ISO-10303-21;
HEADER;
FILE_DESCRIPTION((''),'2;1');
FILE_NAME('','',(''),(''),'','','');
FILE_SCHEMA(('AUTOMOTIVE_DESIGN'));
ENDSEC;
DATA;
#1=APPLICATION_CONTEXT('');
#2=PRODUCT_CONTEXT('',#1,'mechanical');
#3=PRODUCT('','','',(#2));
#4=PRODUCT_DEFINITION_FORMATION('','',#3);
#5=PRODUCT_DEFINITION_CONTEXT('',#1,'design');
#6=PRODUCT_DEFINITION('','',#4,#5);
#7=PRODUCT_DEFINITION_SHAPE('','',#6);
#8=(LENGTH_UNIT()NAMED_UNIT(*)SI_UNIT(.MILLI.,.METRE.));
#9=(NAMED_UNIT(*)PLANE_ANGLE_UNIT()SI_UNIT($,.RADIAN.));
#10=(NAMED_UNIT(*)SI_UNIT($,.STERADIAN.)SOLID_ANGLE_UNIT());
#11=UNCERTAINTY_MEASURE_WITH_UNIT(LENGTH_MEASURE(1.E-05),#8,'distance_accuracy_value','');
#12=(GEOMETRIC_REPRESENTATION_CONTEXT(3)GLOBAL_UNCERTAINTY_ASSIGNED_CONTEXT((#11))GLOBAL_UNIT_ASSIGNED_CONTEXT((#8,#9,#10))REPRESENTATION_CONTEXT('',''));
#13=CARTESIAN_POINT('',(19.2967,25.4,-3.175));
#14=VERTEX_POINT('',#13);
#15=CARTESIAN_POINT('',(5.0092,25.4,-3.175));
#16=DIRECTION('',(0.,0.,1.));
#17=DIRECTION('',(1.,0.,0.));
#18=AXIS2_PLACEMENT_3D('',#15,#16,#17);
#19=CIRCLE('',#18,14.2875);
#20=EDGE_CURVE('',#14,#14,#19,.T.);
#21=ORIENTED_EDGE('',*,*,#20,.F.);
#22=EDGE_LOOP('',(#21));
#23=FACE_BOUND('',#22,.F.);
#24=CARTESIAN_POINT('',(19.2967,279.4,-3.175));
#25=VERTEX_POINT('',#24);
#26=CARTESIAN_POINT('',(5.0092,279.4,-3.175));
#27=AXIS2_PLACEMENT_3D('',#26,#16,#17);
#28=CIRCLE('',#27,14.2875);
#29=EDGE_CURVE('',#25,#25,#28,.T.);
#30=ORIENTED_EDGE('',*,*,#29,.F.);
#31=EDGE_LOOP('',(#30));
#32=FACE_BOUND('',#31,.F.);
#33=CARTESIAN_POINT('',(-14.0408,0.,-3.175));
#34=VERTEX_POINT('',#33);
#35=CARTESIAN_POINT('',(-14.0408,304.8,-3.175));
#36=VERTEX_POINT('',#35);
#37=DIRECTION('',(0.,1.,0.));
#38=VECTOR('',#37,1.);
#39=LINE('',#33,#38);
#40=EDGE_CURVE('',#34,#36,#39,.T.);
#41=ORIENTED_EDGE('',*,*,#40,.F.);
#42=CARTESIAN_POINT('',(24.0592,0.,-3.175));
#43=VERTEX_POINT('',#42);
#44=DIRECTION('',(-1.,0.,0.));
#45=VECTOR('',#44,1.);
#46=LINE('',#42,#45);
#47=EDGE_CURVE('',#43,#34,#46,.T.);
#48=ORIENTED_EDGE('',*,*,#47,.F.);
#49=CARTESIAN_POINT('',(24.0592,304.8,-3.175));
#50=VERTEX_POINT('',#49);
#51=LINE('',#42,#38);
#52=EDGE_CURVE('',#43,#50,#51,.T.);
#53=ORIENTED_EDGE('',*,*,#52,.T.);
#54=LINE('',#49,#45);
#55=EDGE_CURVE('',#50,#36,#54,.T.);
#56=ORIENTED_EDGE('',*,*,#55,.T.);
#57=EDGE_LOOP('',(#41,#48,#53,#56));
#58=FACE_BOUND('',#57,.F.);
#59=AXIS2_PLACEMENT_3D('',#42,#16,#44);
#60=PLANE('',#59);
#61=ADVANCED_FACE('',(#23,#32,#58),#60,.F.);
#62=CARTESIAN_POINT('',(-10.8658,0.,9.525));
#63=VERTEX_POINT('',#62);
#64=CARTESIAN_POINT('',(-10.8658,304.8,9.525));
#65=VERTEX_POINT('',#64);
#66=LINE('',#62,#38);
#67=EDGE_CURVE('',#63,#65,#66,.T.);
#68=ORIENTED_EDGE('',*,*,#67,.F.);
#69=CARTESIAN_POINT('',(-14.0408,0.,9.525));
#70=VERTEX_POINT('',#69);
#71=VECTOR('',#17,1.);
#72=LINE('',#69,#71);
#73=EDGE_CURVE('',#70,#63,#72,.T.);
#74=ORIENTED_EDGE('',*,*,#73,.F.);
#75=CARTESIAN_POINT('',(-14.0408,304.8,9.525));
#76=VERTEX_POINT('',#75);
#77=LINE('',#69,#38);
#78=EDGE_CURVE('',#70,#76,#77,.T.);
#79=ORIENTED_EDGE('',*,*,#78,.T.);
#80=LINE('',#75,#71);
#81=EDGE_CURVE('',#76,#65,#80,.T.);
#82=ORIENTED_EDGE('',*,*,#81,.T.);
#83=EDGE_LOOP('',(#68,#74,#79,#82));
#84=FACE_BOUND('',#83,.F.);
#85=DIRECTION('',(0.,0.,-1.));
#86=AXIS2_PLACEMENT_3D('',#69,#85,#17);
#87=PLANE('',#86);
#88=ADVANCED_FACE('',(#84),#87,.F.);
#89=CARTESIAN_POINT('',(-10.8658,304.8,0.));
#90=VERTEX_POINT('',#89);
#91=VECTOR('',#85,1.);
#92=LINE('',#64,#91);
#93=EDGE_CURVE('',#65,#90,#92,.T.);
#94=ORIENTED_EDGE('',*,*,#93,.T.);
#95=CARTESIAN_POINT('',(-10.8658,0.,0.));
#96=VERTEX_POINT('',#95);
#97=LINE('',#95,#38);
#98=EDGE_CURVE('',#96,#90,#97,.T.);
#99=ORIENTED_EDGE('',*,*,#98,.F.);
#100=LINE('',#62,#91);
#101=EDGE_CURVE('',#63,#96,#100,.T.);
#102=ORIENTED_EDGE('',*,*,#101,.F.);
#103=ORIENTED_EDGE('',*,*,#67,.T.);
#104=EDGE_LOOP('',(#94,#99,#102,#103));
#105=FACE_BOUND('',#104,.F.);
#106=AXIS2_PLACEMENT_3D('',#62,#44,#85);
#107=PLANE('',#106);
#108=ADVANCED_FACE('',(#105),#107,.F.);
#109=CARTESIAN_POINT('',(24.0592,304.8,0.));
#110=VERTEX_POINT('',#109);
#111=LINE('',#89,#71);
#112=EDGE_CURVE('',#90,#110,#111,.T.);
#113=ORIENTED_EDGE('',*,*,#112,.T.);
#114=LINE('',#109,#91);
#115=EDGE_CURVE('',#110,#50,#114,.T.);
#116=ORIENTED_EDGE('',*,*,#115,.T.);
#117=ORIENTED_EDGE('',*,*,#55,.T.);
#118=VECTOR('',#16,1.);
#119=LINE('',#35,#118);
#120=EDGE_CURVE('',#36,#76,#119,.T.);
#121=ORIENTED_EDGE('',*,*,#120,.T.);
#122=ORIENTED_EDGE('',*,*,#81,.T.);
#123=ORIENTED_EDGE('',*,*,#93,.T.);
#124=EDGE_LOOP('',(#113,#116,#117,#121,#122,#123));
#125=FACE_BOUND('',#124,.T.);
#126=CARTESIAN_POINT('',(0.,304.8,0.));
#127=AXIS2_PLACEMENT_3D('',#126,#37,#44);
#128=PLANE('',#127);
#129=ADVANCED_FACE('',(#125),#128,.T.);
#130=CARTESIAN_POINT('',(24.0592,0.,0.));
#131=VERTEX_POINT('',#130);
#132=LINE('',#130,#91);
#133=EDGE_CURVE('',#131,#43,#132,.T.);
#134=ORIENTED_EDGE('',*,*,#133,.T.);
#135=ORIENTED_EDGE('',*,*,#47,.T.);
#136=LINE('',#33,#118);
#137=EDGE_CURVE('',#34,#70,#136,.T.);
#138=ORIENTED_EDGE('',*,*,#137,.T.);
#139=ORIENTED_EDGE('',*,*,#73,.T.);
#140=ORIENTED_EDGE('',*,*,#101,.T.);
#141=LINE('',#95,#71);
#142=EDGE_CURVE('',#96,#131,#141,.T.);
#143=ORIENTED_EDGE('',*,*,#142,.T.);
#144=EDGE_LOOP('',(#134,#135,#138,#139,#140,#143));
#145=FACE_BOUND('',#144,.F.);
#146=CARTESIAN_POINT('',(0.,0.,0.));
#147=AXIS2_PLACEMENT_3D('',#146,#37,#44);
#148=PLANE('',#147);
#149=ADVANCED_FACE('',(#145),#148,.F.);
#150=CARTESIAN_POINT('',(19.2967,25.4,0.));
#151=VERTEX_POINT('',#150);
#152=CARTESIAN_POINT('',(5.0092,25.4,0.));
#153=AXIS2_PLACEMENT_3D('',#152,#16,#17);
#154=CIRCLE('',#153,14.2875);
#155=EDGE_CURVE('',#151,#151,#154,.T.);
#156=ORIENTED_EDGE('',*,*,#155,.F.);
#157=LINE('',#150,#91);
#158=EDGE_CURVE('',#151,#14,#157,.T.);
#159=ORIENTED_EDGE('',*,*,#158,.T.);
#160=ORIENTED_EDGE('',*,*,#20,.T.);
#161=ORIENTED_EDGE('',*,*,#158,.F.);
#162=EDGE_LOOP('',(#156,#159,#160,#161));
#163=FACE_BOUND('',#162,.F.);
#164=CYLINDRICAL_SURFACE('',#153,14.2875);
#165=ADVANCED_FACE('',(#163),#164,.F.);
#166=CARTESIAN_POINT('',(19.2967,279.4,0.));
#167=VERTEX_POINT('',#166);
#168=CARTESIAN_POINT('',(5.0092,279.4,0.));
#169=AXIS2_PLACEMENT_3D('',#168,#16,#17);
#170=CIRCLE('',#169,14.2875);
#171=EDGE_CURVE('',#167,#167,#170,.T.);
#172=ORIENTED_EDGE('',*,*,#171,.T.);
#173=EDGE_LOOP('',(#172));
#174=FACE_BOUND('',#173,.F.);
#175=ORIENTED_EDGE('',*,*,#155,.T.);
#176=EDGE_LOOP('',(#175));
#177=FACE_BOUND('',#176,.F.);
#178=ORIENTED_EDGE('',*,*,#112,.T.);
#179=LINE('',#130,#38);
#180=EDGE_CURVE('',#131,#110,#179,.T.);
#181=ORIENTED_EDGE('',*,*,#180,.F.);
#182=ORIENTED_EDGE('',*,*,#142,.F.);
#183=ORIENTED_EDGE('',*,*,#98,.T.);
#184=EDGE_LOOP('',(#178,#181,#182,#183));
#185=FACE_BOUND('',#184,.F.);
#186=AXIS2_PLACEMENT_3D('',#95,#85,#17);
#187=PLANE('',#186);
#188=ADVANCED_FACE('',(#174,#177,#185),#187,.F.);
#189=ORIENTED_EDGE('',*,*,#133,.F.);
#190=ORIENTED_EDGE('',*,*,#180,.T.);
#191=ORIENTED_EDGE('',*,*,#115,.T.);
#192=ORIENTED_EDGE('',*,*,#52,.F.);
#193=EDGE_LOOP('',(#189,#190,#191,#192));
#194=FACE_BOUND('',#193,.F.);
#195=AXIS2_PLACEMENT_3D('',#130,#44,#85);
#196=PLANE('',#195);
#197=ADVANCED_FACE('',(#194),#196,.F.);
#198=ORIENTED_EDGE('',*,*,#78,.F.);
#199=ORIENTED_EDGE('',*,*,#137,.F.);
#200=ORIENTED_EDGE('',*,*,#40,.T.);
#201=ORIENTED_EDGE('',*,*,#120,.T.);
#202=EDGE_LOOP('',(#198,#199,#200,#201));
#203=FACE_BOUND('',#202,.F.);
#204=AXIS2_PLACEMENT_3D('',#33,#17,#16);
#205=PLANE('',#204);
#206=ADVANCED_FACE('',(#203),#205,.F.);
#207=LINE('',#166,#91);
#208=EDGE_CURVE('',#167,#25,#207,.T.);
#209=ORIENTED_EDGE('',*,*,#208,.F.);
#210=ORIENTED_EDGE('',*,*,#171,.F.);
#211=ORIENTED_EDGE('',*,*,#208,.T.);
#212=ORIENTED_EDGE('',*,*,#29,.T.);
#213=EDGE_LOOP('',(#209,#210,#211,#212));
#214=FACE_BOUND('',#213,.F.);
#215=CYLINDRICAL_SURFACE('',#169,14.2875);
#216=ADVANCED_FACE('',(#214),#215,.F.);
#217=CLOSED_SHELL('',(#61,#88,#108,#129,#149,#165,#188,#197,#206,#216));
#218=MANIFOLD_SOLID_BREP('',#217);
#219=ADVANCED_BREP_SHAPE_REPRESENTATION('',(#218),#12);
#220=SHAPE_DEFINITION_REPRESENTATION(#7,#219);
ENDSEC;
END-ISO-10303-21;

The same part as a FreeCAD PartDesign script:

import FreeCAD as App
import Part
import Sketcher
from FreeCAD import Vector
Q = App.Units.Quantity

doc = App.newDocument("Part")
params = doc.addObject("Spreadsheet::Sheet", "Params")
for row, (alias, value) in enumerate([
    ("sketch1_width", "1.5 in"),
    ("sketch1_height", "0.5 in"),
    ("sketch1_width2", "0.125 in"),
    ("pad1_length", "12 in"),
    ("sketch2_diameter", "1.125 in"),
], start=1):
    params.set(f"A{row}", alias)
    params.set(f"B{row}", "=" + value)
    params.setAlias(f"B{row}", alias)

body = doc.addObject("PartDesign::Body", "Body")

# Sketch on XZ plane
sketch1 = body.newObject("Sketcher::SketchObject", "Sketch")
sketch1.AttachmentSupport = (doc.getObject("XZ_Plane"), [""])
sketch1.MapMode = "FlatFace"
sketch1.addGeometry(Part.LineSegment(Vector(-14, -3.2, 0), Vector(-14, 9.5, 0)), False)
sketch1.addGeometry(Part.LineSegment(Vector(-14, 9.5, 0), Vector(-10.9, 9.5, 0)), False)
sketch1.addGeometry(Part.LineSegment(Vector(-10.9, 9.5, 0), Vector(-10.9, 0, 0)), False)
sketch1.addGeometry(Part.LineSegment(Vector(-10.9, 0, 0), Vector(24.1, 0, 0)), False)
sketch1.addGeometry(Part.LineSegment(Vector(24.1, 0, 0), Vector(24.1, -3.2, 0)), False)
sketch1.addGeometry(Part.LineSegment(Vector(24.1, -3.2, 0), Vector(-14, -3.2, 0)), False)
sketch1.addConstraint(Sketcher.Constraint("Coincident", 0, 2, 1, 1))
sketch1.addConstraint(Sketcher.Constraint("Coincident", 1, 2, 2, 1))
sketch1.addConstraint(Sketcher.Constraint("Coincident", 2, 2, 3, 1))
sketch1.addConstraint(Sketcher.Constraint("Coincident", 3, 2, 4, 1))
sketch1.addConstraint(Sketcher.Constraint("Coincident", 4, 2, 5, 1))
sketch1.addConstraint(Sketcher.Constraint("Coincident", 5, 2, 0, 1))
sketch1.addConstraint(Sketcher.Constraint("Vertical", 0))
sketch1.addConstraint(Sketcher.Constraint("Horizontal", 1))
sketch1.addConstraint(Sketcher.Constraint("Vertical", 2))
sketch1.addConstraint(Sketcher.Constraint("Horizontal", 3))
sketch1.addConstraint(Sketcher.Constraint("Vertical", 4))
sketch1.addConstraint(Sketcher.Constraint("Horizontal", 5))
sketch1.addConstraint(Sketcher.Constraint("PointOnObject", 2, 2, -1))
sketch1.addConstraint(Sketcher.Constraint("Equal", 1, 4))
sketch1.addConstraint(Sketcher.Constraint("DistanceX", 5, 2, 5, 1, Q("1.5 in")))
sketch1.addConstraint(Sketcher.Constraint("DistanceY", 0, 1, 0, 2, Q("0.5 in")))
sketch1.addConstraint(Sketcher.Constraint("DistanceX", 1, 1, 1, 2, Q("0.125 in")))
sketch1.addConstraint(Sketcher.Constraint("DistanceX", 0, 2, -1, 1, 14.0408))
sketch1.setExpression("Constraints[14]", "Params.sketch1_width")
sketch1.setExpression("Constraints[15]", "Params.sketch1_height")
sketch1.setExpression("Constraints[16]", "Params.sketch1_width2")
pad1 = body.newObject("PartDesign::Pad", "Pad")
pad1.Profile = sketch1
pad1.setExpression("Length", "Params.pad1_length")
pad1.Reversed = True

# Sketch on XY plane
sketch2 = body.newObject("Sketcher::SketchObject", "Sketch001")
sketch2.AttachmentSupport = (doc.getObject("XY_Plane"), [""])
sketch2.MapMode = "FlatFace"
sketch2.addGeometry(Part.Circle(Vector(5, 25, 0), Vector(0, 0, 1), 14), False)
sketch2.addGeometry(Part.Circle(Vector(5, 279, 0), Vector(0, 0, 1), 14), False)
sketch2.addConstraint(Sketcher.Constraint("Equal", 0, 1))
sketch2.addConstraint(Sketcher.Constraint("Vertical", 0, 3, 1, 3))
sketch2.addConstraint(Sketcher.Constraint("Diameter", 0, Q("1.125 in")))
sketch2.addConstraint(Sketcher.Constraint("DistanceY", -1, 1, 0, 3, Q("1 in")))
sketch2.addConstraint(Sketcher.Constraint("DistanceY", -1, 1, 1, 3, Q("11 in")))
sketch2.addConstraint(Sketcher.Constraint("DistanceX", -1, 1, 0, 3, 5.0092))
sketch2.setExpression("Constraints[2]", "Params.sketch2_diameter")
pocket1 = body.newObject("PartDesign::Pocket", "Pocket")
pocket1.Profile = sketch2
pocket1.Type = "ThroughAll"

doc.recompute()
